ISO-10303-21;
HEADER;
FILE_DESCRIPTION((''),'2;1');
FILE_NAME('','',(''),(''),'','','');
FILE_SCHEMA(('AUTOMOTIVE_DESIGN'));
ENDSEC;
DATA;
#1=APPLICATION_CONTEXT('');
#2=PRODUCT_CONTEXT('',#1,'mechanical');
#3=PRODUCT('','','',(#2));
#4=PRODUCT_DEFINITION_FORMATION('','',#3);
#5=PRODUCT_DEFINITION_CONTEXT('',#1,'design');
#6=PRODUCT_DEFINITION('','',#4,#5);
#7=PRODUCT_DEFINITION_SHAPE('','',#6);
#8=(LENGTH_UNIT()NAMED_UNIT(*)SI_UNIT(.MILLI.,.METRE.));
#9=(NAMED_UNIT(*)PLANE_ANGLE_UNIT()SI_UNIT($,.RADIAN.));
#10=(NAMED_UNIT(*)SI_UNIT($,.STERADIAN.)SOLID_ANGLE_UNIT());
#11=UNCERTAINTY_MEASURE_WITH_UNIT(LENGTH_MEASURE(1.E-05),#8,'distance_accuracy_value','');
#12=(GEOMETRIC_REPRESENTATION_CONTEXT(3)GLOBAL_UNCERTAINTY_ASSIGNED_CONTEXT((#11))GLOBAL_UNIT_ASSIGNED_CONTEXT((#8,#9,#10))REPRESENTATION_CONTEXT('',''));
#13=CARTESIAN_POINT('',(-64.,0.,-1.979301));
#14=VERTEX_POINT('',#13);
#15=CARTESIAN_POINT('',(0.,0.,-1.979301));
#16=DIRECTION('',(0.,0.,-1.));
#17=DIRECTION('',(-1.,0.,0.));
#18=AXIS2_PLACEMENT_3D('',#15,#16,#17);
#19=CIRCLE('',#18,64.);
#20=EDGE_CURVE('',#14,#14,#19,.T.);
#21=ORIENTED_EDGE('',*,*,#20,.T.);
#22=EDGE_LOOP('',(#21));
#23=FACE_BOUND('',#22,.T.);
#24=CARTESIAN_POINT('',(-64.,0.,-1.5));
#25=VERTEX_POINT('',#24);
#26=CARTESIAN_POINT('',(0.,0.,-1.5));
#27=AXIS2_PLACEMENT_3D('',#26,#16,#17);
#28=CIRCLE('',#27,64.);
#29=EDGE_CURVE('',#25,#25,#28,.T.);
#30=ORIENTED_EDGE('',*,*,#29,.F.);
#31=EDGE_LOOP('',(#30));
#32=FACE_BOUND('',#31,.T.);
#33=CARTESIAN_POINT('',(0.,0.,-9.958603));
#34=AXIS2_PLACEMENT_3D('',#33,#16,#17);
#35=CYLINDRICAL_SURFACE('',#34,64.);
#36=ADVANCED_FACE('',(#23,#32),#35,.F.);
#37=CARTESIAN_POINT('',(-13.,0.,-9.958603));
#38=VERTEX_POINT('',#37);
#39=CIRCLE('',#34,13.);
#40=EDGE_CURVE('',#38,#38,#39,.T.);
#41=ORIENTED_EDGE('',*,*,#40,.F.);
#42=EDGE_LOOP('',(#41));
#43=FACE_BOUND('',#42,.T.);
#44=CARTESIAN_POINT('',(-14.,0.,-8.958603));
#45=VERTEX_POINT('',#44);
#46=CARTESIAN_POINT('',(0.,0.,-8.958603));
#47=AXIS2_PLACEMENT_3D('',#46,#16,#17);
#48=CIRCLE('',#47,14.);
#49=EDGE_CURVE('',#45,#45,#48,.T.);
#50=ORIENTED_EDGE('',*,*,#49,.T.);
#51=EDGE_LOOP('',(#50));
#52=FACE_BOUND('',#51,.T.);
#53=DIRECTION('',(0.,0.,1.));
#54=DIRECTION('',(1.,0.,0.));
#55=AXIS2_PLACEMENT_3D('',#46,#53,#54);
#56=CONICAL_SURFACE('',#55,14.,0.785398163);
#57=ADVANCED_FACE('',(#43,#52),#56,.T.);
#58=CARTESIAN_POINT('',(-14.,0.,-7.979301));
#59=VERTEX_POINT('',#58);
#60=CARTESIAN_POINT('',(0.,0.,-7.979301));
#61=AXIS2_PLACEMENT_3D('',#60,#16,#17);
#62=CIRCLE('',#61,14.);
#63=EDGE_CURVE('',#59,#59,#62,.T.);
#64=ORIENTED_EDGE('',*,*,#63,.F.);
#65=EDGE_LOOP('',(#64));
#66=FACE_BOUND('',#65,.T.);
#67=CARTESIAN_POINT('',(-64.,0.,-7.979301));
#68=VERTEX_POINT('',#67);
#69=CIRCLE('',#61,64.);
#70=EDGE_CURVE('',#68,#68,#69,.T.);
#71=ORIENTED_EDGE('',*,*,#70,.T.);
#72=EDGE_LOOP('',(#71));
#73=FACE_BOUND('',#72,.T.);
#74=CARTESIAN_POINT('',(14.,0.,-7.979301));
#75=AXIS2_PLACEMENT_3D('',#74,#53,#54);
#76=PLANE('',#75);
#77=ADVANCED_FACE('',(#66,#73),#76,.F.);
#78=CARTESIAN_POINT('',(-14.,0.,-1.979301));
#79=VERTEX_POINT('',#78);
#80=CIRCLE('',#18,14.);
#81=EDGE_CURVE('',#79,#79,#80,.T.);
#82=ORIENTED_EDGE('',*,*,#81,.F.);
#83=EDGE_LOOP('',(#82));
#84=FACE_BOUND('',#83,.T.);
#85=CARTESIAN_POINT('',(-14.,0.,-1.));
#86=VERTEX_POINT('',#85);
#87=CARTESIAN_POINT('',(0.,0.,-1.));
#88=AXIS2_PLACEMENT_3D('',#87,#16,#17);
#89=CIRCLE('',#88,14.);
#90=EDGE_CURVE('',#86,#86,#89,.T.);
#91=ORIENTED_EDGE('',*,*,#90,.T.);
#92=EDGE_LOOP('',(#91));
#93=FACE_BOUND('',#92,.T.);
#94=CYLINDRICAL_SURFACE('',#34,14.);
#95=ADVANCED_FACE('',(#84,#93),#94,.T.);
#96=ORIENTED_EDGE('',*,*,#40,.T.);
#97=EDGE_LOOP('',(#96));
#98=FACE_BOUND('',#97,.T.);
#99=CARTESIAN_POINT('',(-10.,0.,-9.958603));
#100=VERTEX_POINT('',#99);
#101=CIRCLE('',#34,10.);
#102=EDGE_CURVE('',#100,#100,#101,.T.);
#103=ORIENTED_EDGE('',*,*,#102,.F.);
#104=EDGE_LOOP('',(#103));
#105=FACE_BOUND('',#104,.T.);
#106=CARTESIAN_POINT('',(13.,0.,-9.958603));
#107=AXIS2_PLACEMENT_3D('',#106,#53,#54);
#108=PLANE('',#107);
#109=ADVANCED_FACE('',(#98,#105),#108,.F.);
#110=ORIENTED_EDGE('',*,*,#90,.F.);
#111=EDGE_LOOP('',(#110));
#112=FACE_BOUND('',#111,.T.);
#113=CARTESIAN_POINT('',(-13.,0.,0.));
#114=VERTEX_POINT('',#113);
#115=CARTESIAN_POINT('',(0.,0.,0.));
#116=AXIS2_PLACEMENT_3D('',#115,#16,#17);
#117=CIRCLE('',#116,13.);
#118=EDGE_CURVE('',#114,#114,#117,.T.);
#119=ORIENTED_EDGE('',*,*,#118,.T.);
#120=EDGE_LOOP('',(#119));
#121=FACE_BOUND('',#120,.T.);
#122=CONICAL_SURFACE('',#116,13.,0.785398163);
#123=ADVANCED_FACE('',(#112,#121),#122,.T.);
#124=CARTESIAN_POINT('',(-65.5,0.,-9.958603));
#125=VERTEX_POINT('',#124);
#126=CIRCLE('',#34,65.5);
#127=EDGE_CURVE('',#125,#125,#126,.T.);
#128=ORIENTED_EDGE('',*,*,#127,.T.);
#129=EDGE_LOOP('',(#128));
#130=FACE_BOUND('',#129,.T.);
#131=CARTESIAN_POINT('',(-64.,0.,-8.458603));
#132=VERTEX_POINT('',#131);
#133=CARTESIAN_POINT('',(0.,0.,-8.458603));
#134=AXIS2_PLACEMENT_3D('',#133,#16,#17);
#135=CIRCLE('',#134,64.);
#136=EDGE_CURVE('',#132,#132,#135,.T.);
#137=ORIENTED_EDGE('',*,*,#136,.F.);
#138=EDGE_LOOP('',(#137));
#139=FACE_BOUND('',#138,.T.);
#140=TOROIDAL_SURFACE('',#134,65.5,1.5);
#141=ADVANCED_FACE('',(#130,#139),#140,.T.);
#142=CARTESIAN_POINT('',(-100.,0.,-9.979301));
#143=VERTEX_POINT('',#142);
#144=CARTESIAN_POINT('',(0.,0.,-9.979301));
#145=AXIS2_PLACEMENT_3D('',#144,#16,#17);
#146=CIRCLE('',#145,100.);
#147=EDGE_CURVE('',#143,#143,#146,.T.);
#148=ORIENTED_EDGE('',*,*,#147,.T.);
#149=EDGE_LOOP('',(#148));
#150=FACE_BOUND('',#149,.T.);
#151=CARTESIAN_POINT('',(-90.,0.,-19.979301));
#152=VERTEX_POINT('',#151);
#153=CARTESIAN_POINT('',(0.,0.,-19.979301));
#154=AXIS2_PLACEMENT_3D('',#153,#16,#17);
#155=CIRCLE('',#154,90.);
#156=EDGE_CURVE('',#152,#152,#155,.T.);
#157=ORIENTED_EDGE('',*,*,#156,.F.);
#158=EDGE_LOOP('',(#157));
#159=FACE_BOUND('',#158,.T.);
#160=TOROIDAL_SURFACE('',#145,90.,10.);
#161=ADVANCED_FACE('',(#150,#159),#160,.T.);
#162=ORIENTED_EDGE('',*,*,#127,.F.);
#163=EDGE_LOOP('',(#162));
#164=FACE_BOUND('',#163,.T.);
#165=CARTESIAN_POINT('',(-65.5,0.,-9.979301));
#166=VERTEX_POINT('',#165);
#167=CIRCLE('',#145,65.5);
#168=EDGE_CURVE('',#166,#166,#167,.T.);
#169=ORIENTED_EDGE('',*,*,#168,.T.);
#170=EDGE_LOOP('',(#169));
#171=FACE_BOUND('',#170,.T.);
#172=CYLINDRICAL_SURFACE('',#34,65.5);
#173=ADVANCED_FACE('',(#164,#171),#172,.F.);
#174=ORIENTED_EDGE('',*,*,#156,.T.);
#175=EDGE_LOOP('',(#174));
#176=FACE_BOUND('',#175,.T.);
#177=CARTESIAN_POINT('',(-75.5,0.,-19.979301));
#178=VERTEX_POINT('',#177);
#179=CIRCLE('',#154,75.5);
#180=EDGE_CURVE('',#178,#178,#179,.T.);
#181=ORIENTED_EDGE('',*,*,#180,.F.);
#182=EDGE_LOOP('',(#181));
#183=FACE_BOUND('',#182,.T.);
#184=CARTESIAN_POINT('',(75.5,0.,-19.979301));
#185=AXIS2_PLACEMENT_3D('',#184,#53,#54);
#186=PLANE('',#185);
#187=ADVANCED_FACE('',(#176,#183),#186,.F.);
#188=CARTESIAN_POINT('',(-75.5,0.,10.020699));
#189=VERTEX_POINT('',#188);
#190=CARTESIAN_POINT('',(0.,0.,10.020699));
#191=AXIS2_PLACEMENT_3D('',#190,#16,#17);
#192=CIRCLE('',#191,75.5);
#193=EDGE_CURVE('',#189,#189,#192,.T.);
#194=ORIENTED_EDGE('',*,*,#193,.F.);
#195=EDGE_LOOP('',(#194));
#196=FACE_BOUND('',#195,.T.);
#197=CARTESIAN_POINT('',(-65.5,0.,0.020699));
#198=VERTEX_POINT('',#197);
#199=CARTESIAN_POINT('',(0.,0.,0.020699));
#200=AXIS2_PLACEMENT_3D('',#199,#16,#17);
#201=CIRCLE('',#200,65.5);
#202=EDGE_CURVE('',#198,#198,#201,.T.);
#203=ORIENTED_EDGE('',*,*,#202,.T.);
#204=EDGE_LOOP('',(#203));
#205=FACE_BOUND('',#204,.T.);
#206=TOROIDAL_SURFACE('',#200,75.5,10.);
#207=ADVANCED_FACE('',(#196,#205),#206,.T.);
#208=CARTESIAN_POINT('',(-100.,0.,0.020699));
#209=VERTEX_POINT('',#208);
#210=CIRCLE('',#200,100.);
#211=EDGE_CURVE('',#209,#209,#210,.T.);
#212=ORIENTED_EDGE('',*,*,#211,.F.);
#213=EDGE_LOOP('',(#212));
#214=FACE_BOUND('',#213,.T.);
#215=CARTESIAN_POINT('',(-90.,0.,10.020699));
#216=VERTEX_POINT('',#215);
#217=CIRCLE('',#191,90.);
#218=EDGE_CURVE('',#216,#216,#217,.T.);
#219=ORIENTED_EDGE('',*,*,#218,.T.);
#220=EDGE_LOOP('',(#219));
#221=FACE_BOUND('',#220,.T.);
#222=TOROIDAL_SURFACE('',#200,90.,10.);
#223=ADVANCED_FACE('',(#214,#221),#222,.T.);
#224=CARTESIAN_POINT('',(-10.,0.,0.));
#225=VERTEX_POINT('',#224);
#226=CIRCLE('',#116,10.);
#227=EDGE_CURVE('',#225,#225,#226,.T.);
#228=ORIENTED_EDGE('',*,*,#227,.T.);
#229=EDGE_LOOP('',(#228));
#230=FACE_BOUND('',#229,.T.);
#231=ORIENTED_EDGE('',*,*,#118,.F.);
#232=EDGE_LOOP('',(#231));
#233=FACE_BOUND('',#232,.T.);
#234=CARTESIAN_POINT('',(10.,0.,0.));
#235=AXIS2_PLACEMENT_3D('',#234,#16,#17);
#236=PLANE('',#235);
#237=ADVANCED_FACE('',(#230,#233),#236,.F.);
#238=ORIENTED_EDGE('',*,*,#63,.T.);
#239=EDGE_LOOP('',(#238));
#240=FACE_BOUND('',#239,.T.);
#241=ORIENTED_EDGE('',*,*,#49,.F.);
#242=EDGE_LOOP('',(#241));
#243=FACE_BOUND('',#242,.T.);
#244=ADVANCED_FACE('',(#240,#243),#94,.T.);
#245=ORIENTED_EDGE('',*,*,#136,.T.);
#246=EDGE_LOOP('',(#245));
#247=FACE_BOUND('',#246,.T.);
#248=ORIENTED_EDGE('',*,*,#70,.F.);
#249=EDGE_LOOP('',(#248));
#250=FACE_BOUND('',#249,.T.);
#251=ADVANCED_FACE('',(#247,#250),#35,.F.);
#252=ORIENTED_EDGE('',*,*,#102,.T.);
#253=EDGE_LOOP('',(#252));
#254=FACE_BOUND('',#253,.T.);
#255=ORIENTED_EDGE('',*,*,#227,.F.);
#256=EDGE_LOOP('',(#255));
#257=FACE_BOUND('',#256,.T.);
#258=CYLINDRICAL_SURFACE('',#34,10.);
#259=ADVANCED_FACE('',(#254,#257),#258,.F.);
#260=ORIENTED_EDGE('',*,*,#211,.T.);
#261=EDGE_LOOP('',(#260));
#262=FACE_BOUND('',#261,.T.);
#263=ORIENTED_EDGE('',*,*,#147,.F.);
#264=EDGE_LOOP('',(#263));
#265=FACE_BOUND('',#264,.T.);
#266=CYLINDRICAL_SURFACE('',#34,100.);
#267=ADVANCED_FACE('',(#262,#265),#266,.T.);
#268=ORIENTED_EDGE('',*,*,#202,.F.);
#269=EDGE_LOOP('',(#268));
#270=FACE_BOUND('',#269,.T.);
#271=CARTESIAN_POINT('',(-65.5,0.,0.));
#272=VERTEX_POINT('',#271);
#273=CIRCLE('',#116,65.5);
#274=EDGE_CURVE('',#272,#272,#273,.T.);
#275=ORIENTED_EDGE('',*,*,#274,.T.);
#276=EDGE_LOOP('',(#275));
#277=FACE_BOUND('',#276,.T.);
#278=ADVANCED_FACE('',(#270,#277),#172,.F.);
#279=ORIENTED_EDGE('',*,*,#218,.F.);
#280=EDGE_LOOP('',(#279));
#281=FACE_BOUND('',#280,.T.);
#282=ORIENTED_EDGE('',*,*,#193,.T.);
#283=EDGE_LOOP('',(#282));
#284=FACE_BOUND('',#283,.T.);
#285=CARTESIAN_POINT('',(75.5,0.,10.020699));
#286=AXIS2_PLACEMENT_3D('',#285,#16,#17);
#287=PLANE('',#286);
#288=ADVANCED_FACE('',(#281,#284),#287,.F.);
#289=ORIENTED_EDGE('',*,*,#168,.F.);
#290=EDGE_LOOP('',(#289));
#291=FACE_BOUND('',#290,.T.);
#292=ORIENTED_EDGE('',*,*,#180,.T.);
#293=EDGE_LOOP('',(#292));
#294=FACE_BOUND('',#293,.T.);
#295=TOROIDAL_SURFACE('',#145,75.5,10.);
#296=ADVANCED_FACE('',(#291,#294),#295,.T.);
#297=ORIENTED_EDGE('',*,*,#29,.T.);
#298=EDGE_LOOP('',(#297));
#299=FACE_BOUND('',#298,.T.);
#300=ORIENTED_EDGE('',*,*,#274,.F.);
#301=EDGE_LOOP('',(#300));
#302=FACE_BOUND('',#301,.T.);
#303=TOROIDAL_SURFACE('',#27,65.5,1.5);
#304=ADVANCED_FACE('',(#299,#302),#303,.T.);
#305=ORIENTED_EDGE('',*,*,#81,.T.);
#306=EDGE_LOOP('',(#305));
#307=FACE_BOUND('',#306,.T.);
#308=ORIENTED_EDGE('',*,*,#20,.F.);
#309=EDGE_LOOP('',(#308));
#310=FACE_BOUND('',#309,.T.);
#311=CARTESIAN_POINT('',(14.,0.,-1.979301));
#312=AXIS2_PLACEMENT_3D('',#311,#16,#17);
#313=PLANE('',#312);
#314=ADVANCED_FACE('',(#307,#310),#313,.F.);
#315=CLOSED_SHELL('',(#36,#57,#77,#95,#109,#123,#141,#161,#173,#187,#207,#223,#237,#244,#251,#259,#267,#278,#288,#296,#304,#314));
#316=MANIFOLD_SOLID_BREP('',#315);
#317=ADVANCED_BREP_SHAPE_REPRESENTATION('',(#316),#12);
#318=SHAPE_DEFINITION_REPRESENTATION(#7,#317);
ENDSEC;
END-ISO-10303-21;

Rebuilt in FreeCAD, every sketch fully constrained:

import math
import FreeCAD as App
import Part
import Sketcher

doc = App.newDocument("Part")
params = doc.addObject("Spreadsheet::Sheet", "Params")
for row, (alias, value) in enumerate([
    ("sketch1_radius", "10 mm"),
    ("sketch1_radius2", "1.5 mm"),
    ("sketch1_width", "3 mm"),
    ("sketch1_width2", "50 mm"),
    ("sketch1_height", "10 mm"),
    ("revolution_angle", "360 deg"),
], start=1):
    params.set(f"A{row}", alias)
    params.set(f"B{row}", "=" + value)
    params.setAlias(f"B{row}", alias)

body = doc.addObject("PartDesign::Body", "Body")

# Sketch on XZ plane
sketch1 = body.newObject("Sketcher::SketchObject", "Sketch")
sketch1.AttachmentSupport = (doc.getObject("XZ_Plane"), [""])
sketch1.MapMode = "FlatFace"
sketch1.addGeometry([
    Part.LineSegment(App.Vector(10, 0, 0), App.Vector(13, 0, 0)),  # 0
    Part.LineSegment(App.Vector(13, 0, 0), App.Vector(14, -1, 0)),  # 1
    Part.LineSegment(App.Vector(14, -1, 0), App.Vector(14, -1.979, 0)),  # 2
    Part.LineSegment(App.Vector(14, -1.979, 0), App.Vector(64, -1.979, 0)),  # 3
    Part.LineSegment(App.Vector(64, -1.979, 0), App.Vector(64, -1.5, 0)),  # 4
    Part.ArcOfCircle(Part.Circle(App.Vector(65.5, -1.5, 0), App.Vector(0, 0, 1), 1.5), math.radians(90), math.radians(180)),  # 5
    Part.LineSegment(App.Vector(65.5, 0, 0), App.Vector(65.5, 0.021, 0)),  # 6
    Part.ArcOfCircle(Part.Circle(App.Vector(75.5, 0.021, 0), App.Vector(0, 0, 1), 10), math.radians(90), math.radians(180)),  # 7
    Part.LineSegment(App.Vector(75.5, 10.021, 0), App.Vector(90, 10.021, 0)),  # 8
    Part.ArcOfCircle(Part.Circle(App.Vector(90, 0.021, 0), App.Vector(0, 0, 1), 10), math.radians(0), math.radians(90)),  # 9
    Part.LineSegment(App.Vector(100, 0.021, 0), App.Vector(100, -9.979, 0)),  # 10
    Part.ArcOfCircle(Part.Circle(App.Vector(90, -9.979, 0), App.Vector(0, 0, 1), 10), math.radians(-90), math.radians(0)),  # 11
    Part.LineSegment(App.Vector(90, -19.979, 0), App.Vector(75.5, -19.979, 0)),  # 12
    Part.ArcOfCircle(Part.Circle(App.Vector(75.5, -9.979, 0), App.Vector(0, 0, 1), 10), math.radians(180), math.radians(270)),  # 13
    Part.LineSegment(App.Vector(65.5, -9.979, 0), App.Vector(65.5, -9.959, 0)),  # 14
    Part.ArcOfCircle(Part.Circle(App.Vector(65.5, -8.459, 0), App.Vector(0, 0, 1), 1.5), math.radians(180), math.radians(270)),  # 15
    Part.LineSegment(App.Vector(64, -8.459, 0), App.Vector(64, -7.979, 0)),  # 16
    Part.LineSegment(App.Vector(64, -7.979, 0), App.Vector(14, -7.979, 0)),  # 17
    Part.LineSegment(App.Vector(14, -7.979, 0), App.Vector(14, -8.959, 0)),  # 18
    Part.LineSegment(App.Vector(14, -8.959, 0), App.Vector(13, -9.959, 0)),  # 19
    Part.LineSegment(App.Vector(13, -9.959, 0), App.Vector(10, -9.959, 0)),  # 20
    Part.LineSegment(App.Vector(10, -9.959, 0), App.Vector(10, 0, 0)),  # 21
], False)
sketch1.addConstraint([
    Sketcher.Constraint("Coincident", 0, 2, 1, 1),
    Sketcher.Constraint("Coincident", 1, 2, 2, 1),
    Sketcher.Constraint("Coincident", 2, 2, 3, 1),
    Sketcher.Constraint("Coincident", 3, 2, 4, 1),
    Sketcher.Constraint("Tangent", 4, 2, 5, 2),
    Sketcher.Constraint("Coincident", 5, 1, 6, 1),
    Sketcher.Constraint("Tangent", 6, 2, 7, 2),
    Sketcher.Constraint("Tangent", 7, 1, 8, 1),
    Sketcher.Constraint("Tangent", 8, 2, 9, 2),
    Sketcher.Constraint("Tangent", 9, 1, 10, 1),
    Sketcher.Constraint("Tangent", 10, 2, 11, 2),
    Sketcher.Constraint("Tangent", 11, 1, 12, 1),
    Sketcher.Constraint("Tangent", 12, 2, 13, 2),
    Sketcher.Constraint("Tangent", 13, 1, 14, 1),
    Sketcher.Constraint("Coincident", 14, 2, 15, 2),
    Sketcher.Constraint("Tangent", 15, 1, 16, 1),
    Sketcher.Constraint("Coincident", 16, 2, 17, 1),
    Sketcher.Constraint("Coincident", 17, 2, 18, 1),
    Sketcher.Constraint("Coincident", 18, 2, 19, 1),
    Sketcher.Constraint("Coincident", 19, 2, 20, 1),
    Sketcher.Constraint("Coincident", 20, 2, 21, 1),
    Sketcher.Constraint("Coincident", 21, 2, 0, 1),
    Sketcher.Constraint("Horizontal", 0),
    Sketcher.Constraint("Vertical", 2),
    Sketcher.Constraint("Horizontal", 3),
    Sketcher.Constraint("Vertical", 4),
    Sketcher.Constraint("Horizontal", 8),
    Sketcher.Constraint("Vertical", 10),
    Sketcher.Constraint("Horizontal", 12),
    Sketcher.Constraint("Vertical", 16),
    Sketcher.Constraint("Horizontal", 17),
    Sketcher.Constraint("Vertical", 18),
    Sketcher.Constraint("Horizontal", 20),
    Sketcher.Constraint("Vertical", 21),
    Sketcher.Constraint("Equal", 7, 9),
    Sketcher.Constraint("Equal", 9, 11),
    Sketcher.Constraint("Equal", 11, 13),
    Sketcher.Constraint("Equal", 5, 15),
    Sketcher.Constraint("PointOnObject", 0, 2, -1),
    Sketcher.Constraint("PointOnObject", 5, 1, -1),
    Sketcher.Constraint("Perpendicular", 1, 19),
    Sketcher.Constraint("Horizontal", 9, 3, 6, 2),
    Sketcher.Constraint("Horizontal", 10, 2, 13, 1),
    Sketcher.Constraint("Horizontal", 14, 2, 19, 2),
    Sketcher.Constraint("Vertical", 7, 3, 13, 3),
    Sketcher.Constraint("Vertical", 5, 3, 15, 3),
    Sketcher.Constraint("Vertical", 15, 3, 5, 1),
    Sketcher.Constraint("Vertical", 2, 2, 17, 2),
    Sketcher.Constraint("Vertical", 0, 2, 19, 2),
    Sketcher.Constraint("Equal", 6, 14),
    Sketcher.Constraint("Equal", 4, 16),
    Sketcher.Constraint("Equal", 2, 18),
    Sketcher.Constraint("Radius", 7, 10.0),
    Sketcher.Constraint("Radius", 5, 1.5),
    Sketcher.Constraint("DistanceX", 0, 1, 0, 2, 3.0),
    Sketcher.Constraint("DistanceX", 3, 1, 3, 2, 50.0),
    Sketcher.Constraint("DistanceY", 10, 2, 10, 1, 10.0),
    Sketcher.Constraint("DistanceX", 8, 1, 8, 2, 14.5),
    Sketcher.Constraint("DistanceX", -1, 1, 9, 3, 90.0),
    Sketcher.Constraint("DistanceX", -1, 1, 0, 2, 13.0),
    Sketcher.Constraint("DistanceY", 2, 2, 7, 3, 2.0),
    Sketcher.Constraint("DistanceY", 2, 2, 2, 1, 0.979301),
])
sketch1.setExpression("Constraints[52]", "Params.sketch1_radius")
sketch1.setExpression("Constraints[53]", "Params.sketch1_radius2")
sketch1.setExpression("Constraints[54]", "Params.sketch1_width")
sketch1.setExpression("Constraints[55]", "Params.sketch1_width2")
sketch1.setExpression("Constraints[56]", "Params.sketch1_height")
revolution = body.newObject("PartDesign::Revolution", "Revolution")
revolution.Profile = sketch1
revolution.ReferenceAxis = (sketch1, ["V_Axis"])
revolution.setExpression("Angle", "Params.revolution_angle")

doc.recompute()
